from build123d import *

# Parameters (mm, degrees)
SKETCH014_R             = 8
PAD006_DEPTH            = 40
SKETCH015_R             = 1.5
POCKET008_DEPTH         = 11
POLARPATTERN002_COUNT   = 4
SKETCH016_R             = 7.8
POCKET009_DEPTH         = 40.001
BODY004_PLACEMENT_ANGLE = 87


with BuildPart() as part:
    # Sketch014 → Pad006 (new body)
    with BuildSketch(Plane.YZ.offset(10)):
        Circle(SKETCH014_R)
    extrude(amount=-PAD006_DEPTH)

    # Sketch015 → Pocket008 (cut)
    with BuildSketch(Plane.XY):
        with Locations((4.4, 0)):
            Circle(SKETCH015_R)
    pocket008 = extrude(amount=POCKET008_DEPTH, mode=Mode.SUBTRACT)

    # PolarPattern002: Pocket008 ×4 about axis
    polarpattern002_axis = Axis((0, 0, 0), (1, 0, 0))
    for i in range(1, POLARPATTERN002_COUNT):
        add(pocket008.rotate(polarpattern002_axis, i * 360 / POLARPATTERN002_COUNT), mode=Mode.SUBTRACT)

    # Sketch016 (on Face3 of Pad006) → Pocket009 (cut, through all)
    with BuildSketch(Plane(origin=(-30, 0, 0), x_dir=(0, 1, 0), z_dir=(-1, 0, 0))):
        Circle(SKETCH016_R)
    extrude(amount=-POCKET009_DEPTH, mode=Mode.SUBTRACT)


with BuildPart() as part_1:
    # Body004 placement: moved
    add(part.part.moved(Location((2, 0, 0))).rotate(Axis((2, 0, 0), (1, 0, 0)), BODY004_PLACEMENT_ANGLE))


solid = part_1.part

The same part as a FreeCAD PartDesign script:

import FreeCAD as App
import Part
import Sketcher

V = App.Vector

doc = App.newDocument("Part")
body = doc.addObject("PartDesign::Body", "Body")

# Sketch on YZ plane
sketch1 = body.newObject("Sketcher::SketchObject", "Sketch")
sketch1.AttachmentSupport = (doc.getObject("YZ_Plane"), [""])
sketch1.MapMode = "FlatFace"
sketch1.AttachmentOffset = App.Placement(V(0, 0, 10), App.Rotation())
sketch1.addGeometry(Part.Circle(V(0, 0, 0), V(0, 0, 1), 8), False)
sketch1.addConstraint([
    Sketcher.Constraint("Coincident", 0, 3, -1, 1),
    Sketcher.Constraint("Diameter", 0, 16.0),
])
pad1 = body.newObject("PartDesign::Pad", "Pad")
pad1.Profile = sketch1
pad1.Length = 40
pad1.Reversed = True

# Sketch on XY plane
sketch2 = body.newObject("Sketcher::SketchObject", "Sketch001")
sketch2.AttachmentSupport = (doc.getObject("XY_Plane"), [""])
sketch2.MapMode = "FlatFace"
sketch2.addGeometry(Part.Circle(V(4.4, 0, 0), V(0, 0, 1), 1.5), False)
sketch2.addConstraint([
    Sketcher.Constraint("PointOnObject", 0, 3, -1),
    Sketcher.Constraint("Diameter", 0, 3.0),
    Sketcher.Constraint("DistanceX", -1, 1, 0, 3, 4.4),
])
pocket1 = body.newObject("PartDesign::Pocket", "Pocket")
pocket1.Profile = sketch2
pocket1.Length = 11
pocket1.Reversed = True
doc.recompute()

polarpattern = body.newObject("PartDesign::PolarPattern", "PolarPattern")
polarpattern.Originals = [pocket1]
polarpattern.Axis = (doc.getObject("X_Axis"), [""])
polarpattern.Angle = 360
polarpattern.Occurrences = 4
body.Tip = polarpattern

# Sketch on YZ plane
sketch3 = body.newObject("Sketcher::SketchObject", "Sketch002")
sketch3.AttachmentSupport = (doc.getObject("YZ_Plane"), [""])
sketch3.MapMode = "FlatFace"
sketch3.AttachmentOffset = App.Placement(V(0, 0, -30), App.Rotation())
sketch3.addGeometry(Part.Circle(V(0, 0, 0), V(0, 0, 1), 8), False)
sketch3.addConstraint([
    Sketcher.Constraint("Coincident", 0, 3, -1, 1),
    Sketcher.Constraint("Diameter", 0, 15.6),
])
pocket2 = body.newObject("PartDesign::Pocket", "Pocket001")
pocket2.Profile = sketch3
pocket2.Type = "ThroughAll"
pocket2.Reversed = True
body2 = doc.addObject("PartDesign::Body", "Body001")
doc.recompute()

body.Placement = App.Placement(V(2, 0, 0), App.Rotation(V(1, 0, 0), 87))
boolean = body2.newObject("PartDesign::Boolean", "Boolean")
boolean.Type = "Fuse"
boolean.addObjects([body])

doc.recompute()
